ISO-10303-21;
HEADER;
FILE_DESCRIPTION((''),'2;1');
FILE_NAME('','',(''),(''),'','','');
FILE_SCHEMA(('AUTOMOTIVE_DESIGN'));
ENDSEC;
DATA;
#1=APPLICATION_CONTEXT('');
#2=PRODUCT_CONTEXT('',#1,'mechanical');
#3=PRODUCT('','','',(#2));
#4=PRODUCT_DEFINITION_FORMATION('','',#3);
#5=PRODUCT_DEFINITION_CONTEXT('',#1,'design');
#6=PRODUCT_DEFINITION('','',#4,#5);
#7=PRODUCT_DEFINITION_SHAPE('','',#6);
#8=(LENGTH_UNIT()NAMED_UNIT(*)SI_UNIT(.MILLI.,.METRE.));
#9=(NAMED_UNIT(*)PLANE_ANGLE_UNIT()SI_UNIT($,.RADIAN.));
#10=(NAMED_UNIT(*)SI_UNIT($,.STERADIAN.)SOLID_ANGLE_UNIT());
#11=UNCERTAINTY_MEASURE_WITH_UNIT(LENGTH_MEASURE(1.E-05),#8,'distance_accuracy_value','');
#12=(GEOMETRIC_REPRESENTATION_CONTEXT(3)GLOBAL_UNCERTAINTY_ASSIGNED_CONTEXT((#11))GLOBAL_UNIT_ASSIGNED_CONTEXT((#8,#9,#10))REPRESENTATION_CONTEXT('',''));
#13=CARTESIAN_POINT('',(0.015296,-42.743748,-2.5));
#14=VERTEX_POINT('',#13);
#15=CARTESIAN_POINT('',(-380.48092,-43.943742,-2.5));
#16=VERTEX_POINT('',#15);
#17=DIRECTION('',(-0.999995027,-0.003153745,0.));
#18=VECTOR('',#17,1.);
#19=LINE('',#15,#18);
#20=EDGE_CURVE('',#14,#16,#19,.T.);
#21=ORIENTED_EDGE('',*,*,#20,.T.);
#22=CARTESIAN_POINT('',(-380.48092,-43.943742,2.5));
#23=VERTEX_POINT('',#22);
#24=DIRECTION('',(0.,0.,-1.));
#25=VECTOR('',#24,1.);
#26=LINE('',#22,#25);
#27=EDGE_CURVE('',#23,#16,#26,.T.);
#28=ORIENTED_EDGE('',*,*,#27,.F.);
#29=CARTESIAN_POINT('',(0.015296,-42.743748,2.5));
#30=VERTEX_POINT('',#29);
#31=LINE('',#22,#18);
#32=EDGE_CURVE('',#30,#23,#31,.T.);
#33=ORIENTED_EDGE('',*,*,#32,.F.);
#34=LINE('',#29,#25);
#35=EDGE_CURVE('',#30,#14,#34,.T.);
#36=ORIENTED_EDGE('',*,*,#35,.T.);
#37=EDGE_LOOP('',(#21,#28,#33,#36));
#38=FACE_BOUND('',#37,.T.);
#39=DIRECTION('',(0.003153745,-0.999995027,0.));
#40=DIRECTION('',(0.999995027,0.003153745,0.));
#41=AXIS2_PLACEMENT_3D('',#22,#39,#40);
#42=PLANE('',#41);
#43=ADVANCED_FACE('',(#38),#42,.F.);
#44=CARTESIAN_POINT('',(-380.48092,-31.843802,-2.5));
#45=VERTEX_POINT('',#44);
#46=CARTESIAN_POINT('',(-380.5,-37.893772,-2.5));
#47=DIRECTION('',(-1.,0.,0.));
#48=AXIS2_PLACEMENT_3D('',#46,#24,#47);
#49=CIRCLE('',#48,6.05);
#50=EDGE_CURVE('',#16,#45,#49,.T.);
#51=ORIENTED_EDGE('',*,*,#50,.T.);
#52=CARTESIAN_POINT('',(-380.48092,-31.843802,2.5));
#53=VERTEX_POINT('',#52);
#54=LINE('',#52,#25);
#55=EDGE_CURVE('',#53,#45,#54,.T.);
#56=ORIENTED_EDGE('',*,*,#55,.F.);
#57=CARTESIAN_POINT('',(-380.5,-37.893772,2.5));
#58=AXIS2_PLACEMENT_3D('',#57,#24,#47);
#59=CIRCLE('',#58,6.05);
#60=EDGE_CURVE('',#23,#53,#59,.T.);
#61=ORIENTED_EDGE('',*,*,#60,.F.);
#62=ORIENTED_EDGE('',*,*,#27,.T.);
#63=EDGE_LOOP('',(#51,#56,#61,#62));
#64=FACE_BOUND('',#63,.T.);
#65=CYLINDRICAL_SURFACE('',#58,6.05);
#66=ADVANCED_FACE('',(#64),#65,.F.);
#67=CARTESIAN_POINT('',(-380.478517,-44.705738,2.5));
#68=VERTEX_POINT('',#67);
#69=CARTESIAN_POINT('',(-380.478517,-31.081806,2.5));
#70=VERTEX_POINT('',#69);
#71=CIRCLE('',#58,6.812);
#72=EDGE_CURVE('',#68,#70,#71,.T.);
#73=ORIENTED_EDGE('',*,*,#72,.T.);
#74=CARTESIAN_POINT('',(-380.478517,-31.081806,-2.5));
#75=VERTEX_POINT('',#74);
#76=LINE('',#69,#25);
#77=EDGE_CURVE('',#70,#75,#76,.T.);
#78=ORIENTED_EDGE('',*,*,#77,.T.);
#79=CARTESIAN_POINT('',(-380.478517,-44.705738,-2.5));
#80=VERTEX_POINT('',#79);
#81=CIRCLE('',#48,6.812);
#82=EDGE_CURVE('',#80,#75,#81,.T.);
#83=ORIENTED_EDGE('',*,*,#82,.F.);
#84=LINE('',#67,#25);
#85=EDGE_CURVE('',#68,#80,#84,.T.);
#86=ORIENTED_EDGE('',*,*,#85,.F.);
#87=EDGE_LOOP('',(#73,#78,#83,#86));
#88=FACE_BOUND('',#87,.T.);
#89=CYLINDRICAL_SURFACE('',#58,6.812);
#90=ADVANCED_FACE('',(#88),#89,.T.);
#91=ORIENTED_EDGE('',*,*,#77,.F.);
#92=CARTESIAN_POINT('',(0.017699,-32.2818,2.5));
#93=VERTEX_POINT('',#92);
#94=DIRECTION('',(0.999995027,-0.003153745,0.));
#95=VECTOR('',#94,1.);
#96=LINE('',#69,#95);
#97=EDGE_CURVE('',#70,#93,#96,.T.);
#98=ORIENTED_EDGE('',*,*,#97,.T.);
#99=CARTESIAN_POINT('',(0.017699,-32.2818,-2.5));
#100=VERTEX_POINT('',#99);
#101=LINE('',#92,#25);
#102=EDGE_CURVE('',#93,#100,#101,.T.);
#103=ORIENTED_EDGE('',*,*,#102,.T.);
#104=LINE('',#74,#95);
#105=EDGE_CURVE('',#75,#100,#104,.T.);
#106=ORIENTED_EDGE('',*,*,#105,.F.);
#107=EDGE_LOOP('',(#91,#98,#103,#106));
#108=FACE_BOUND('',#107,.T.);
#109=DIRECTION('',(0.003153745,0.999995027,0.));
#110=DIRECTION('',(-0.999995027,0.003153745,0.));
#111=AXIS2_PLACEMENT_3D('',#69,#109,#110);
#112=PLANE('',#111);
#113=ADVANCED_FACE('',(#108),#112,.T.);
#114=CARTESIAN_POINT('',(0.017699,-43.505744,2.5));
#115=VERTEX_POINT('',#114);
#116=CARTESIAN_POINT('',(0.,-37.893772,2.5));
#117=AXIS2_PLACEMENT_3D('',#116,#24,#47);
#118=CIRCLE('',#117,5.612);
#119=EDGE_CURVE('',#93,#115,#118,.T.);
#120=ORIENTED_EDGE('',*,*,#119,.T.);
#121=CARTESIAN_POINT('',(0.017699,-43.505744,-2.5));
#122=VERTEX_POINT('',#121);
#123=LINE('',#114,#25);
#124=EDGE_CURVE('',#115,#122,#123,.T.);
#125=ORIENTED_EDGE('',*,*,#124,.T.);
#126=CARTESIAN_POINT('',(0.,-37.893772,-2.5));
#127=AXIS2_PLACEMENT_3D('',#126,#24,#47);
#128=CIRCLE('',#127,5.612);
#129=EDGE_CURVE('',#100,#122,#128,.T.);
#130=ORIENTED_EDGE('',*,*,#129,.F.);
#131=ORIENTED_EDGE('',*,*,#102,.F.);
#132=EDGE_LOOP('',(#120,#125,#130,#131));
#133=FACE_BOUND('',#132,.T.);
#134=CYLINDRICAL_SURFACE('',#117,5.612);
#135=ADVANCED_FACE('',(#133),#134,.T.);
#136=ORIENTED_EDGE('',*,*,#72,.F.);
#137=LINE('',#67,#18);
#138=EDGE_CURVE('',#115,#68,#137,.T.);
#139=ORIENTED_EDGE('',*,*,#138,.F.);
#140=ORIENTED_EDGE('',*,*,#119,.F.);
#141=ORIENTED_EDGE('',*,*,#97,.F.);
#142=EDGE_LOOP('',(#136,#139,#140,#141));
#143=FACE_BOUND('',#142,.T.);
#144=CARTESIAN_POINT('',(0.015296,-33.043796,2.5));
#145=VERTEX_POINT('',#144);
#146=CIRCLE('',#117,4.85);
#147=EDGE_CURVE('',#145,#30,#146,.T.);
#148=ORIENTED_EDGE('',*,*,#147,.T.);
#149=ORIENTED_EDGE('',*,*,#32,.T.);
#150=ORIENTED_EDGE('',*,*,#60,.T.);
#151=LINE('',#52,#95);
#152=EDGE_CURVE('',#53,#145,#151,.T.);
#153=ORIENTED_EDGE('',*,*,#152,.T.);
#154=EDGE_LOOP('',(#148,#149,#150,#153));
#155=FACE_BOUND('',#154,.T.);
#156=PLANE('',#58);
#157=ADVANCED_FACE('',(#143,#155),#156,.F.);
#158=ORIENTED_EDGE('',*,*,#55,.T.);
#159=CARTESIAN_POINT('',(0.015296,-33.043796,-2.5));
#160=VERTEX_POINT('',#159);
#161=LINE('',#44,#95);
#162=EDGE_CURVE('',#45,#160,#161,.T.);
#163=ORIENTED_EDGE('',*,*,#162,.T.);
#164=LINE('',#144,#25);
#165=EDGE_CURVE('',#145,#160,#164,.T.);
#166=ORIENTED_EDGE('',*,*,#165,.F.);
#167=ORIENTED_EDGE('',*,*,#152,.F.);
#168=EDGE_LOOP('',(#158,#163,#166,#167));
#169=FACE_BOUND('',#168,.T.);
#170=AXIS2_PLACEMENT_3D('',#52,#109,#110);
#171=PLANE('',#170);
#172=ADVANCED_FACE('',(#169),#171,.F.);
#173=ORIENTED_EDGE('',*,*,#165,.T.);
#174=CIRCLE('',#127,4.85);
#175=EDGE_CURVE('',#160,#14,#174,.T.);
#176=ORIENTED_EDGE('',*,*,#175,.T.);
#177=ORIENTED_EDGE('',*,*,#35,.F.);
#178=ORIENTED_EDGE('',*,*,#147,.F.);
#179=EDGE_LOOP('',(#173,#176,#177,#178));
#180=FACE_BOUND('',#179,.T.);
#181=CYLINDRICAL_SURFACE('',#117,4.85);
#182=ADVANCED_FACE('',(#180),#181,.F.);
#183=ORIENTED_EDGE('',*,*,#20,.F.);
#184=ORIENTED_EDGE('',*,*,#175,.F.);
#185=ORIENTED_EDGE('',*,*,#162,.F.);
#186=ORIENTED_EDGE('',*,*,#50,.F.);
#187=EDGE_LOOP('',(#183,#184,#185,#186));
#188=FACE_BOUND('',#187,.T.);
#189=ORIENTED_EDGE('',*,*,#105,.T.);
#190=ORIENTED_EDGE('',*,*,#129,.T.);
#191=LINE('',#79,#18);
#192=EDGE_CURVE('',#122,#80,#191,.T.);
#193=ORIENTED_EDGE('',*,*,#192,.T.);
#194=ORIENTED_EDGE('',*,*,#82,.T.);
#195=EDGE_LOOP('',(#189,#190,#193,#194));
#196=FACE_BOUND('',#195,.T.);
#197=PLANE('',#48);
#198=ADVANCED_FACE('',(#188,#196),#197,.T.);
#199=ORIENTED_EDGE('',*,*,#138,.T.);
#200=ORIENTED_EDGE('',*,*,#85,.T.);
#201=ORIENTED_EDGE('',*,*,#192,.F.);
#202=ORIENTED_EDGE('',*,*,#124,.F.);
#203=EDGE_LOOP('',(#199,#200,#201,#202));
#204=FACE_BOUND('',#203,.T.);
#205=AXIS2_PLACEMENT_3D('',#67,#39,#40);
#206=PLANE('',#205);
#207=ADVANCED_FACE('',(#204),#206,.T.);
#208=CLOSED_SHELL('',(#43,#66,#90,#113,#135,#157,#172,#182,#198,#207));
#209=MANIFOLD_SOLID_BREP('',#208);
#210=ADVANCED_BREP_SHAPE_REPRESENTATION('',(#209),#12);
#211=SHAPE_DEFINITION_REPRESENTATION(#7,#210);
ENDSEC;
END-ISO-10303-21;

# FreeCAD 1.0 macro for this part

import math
import FreeCAD as App
import Part
import Sketcher

V = App.Vector
Q = App.Units.Quantity

doc = App.newDocument("Part")
body = doc.addObject("PartDesign::Body", "Body")

sketch1 = body.newObject("Sketcher::SketchObject", "Sketch")
sketch1.AttachmentSupport = (doc.getObject("XY_Plane"), [""])
sketch1.MapMode = "FlatFace"
sketch1.addGeometry([
    Part.LineSegment(V(0, -32.3, 0), V(-380.5, -31.1, 0)),
    Part.ArcOfCircle(Part.Circle(V(-380.5, -37.9, 0), V(0, 0, 1), 6.8), math.radians(90), math.radians(270)),
    Part.LineSegment(V(-380.5, -44.7, 0), V(0, -43.5, 0)),
    Part.ArcOfCircle(Part.Circle(V(0, -37.9, 0), V(0, 0, 1), 5.6), math.radians(-90), math.radians(90)),
    Part.LineSegment(V(-380.5, -31.8, 0), V(0, -33, 0)),
    Part.ArcOfCircle(Part.Circle(V(0, -37.9, 0), V(0, 0, 1), 4.8), math.radians(-90), math.radians(90)),
    Part.LineSegment(V(0, -42.7, 0), V(-380.5, -43.9, 0)),
    Part.ArcOfCircle(Part.Circle(V(-380.5, -37.9, 0), V(0, 0, 1), 6), math.radians(90), math.radians(270)),
], False)
sketch1.addConstraint([
    Sketcher.Constraint("Tangent", 0, 2, 1, 1),
    Sketcher.Constraint("Tangent", 1, 2, 2, 1),
    Sketcher.Constraint("Tangent", 2, 2, 3, 1),
    Sketcher.Constraint("Tangent", 3, 2, 0, 1),
    Sketcher.Constraint("Tangent", 4, 2, 5, 2),
    Sketcher.Constraint("Tangent", 5, 1, 6, 1),
    Sketcher.Constraint("Tangent", 6, 2, 7, 2),
    Sketcher.Constraint("Tangent", 7, 1, 4, 1),
    Sketcher.Constraint("Coincident", 5, 3, 3, 3),
    Sketcher.Constraint("Coincident", 7, 3, 1, 3),
    Sketcher.Constraint("PointOnObject", 3, 3, -2),
    Sketcher.Constraint("Parallel", 0, 4),
    Sketcher.Constraint("Horizontal", 1, 3, 3, 3),
    Sketcher.Constraint("Radius", 5, Q("4.85 mm")),
    Sketcher.Constraint("Radius", 7, Q("6.05 mm")),
    Sketcher.Constraint("Radius", 1, Q("6.812 mm")),
    Sketcher.Constraint("DistanceX", 1, 3, -1, 1, Q("380.5 mm")),
    Sketcher.Constraint("DistanceY", 3, 2, -1, 1, Q("32.2818 mm")),
])
pad1 = body.newObject("PartDesign::Pad", "Pad")
pad1.Profile = sketch1
pad1.Length = 5
pad1.Midplane = True

doc.recompute()
